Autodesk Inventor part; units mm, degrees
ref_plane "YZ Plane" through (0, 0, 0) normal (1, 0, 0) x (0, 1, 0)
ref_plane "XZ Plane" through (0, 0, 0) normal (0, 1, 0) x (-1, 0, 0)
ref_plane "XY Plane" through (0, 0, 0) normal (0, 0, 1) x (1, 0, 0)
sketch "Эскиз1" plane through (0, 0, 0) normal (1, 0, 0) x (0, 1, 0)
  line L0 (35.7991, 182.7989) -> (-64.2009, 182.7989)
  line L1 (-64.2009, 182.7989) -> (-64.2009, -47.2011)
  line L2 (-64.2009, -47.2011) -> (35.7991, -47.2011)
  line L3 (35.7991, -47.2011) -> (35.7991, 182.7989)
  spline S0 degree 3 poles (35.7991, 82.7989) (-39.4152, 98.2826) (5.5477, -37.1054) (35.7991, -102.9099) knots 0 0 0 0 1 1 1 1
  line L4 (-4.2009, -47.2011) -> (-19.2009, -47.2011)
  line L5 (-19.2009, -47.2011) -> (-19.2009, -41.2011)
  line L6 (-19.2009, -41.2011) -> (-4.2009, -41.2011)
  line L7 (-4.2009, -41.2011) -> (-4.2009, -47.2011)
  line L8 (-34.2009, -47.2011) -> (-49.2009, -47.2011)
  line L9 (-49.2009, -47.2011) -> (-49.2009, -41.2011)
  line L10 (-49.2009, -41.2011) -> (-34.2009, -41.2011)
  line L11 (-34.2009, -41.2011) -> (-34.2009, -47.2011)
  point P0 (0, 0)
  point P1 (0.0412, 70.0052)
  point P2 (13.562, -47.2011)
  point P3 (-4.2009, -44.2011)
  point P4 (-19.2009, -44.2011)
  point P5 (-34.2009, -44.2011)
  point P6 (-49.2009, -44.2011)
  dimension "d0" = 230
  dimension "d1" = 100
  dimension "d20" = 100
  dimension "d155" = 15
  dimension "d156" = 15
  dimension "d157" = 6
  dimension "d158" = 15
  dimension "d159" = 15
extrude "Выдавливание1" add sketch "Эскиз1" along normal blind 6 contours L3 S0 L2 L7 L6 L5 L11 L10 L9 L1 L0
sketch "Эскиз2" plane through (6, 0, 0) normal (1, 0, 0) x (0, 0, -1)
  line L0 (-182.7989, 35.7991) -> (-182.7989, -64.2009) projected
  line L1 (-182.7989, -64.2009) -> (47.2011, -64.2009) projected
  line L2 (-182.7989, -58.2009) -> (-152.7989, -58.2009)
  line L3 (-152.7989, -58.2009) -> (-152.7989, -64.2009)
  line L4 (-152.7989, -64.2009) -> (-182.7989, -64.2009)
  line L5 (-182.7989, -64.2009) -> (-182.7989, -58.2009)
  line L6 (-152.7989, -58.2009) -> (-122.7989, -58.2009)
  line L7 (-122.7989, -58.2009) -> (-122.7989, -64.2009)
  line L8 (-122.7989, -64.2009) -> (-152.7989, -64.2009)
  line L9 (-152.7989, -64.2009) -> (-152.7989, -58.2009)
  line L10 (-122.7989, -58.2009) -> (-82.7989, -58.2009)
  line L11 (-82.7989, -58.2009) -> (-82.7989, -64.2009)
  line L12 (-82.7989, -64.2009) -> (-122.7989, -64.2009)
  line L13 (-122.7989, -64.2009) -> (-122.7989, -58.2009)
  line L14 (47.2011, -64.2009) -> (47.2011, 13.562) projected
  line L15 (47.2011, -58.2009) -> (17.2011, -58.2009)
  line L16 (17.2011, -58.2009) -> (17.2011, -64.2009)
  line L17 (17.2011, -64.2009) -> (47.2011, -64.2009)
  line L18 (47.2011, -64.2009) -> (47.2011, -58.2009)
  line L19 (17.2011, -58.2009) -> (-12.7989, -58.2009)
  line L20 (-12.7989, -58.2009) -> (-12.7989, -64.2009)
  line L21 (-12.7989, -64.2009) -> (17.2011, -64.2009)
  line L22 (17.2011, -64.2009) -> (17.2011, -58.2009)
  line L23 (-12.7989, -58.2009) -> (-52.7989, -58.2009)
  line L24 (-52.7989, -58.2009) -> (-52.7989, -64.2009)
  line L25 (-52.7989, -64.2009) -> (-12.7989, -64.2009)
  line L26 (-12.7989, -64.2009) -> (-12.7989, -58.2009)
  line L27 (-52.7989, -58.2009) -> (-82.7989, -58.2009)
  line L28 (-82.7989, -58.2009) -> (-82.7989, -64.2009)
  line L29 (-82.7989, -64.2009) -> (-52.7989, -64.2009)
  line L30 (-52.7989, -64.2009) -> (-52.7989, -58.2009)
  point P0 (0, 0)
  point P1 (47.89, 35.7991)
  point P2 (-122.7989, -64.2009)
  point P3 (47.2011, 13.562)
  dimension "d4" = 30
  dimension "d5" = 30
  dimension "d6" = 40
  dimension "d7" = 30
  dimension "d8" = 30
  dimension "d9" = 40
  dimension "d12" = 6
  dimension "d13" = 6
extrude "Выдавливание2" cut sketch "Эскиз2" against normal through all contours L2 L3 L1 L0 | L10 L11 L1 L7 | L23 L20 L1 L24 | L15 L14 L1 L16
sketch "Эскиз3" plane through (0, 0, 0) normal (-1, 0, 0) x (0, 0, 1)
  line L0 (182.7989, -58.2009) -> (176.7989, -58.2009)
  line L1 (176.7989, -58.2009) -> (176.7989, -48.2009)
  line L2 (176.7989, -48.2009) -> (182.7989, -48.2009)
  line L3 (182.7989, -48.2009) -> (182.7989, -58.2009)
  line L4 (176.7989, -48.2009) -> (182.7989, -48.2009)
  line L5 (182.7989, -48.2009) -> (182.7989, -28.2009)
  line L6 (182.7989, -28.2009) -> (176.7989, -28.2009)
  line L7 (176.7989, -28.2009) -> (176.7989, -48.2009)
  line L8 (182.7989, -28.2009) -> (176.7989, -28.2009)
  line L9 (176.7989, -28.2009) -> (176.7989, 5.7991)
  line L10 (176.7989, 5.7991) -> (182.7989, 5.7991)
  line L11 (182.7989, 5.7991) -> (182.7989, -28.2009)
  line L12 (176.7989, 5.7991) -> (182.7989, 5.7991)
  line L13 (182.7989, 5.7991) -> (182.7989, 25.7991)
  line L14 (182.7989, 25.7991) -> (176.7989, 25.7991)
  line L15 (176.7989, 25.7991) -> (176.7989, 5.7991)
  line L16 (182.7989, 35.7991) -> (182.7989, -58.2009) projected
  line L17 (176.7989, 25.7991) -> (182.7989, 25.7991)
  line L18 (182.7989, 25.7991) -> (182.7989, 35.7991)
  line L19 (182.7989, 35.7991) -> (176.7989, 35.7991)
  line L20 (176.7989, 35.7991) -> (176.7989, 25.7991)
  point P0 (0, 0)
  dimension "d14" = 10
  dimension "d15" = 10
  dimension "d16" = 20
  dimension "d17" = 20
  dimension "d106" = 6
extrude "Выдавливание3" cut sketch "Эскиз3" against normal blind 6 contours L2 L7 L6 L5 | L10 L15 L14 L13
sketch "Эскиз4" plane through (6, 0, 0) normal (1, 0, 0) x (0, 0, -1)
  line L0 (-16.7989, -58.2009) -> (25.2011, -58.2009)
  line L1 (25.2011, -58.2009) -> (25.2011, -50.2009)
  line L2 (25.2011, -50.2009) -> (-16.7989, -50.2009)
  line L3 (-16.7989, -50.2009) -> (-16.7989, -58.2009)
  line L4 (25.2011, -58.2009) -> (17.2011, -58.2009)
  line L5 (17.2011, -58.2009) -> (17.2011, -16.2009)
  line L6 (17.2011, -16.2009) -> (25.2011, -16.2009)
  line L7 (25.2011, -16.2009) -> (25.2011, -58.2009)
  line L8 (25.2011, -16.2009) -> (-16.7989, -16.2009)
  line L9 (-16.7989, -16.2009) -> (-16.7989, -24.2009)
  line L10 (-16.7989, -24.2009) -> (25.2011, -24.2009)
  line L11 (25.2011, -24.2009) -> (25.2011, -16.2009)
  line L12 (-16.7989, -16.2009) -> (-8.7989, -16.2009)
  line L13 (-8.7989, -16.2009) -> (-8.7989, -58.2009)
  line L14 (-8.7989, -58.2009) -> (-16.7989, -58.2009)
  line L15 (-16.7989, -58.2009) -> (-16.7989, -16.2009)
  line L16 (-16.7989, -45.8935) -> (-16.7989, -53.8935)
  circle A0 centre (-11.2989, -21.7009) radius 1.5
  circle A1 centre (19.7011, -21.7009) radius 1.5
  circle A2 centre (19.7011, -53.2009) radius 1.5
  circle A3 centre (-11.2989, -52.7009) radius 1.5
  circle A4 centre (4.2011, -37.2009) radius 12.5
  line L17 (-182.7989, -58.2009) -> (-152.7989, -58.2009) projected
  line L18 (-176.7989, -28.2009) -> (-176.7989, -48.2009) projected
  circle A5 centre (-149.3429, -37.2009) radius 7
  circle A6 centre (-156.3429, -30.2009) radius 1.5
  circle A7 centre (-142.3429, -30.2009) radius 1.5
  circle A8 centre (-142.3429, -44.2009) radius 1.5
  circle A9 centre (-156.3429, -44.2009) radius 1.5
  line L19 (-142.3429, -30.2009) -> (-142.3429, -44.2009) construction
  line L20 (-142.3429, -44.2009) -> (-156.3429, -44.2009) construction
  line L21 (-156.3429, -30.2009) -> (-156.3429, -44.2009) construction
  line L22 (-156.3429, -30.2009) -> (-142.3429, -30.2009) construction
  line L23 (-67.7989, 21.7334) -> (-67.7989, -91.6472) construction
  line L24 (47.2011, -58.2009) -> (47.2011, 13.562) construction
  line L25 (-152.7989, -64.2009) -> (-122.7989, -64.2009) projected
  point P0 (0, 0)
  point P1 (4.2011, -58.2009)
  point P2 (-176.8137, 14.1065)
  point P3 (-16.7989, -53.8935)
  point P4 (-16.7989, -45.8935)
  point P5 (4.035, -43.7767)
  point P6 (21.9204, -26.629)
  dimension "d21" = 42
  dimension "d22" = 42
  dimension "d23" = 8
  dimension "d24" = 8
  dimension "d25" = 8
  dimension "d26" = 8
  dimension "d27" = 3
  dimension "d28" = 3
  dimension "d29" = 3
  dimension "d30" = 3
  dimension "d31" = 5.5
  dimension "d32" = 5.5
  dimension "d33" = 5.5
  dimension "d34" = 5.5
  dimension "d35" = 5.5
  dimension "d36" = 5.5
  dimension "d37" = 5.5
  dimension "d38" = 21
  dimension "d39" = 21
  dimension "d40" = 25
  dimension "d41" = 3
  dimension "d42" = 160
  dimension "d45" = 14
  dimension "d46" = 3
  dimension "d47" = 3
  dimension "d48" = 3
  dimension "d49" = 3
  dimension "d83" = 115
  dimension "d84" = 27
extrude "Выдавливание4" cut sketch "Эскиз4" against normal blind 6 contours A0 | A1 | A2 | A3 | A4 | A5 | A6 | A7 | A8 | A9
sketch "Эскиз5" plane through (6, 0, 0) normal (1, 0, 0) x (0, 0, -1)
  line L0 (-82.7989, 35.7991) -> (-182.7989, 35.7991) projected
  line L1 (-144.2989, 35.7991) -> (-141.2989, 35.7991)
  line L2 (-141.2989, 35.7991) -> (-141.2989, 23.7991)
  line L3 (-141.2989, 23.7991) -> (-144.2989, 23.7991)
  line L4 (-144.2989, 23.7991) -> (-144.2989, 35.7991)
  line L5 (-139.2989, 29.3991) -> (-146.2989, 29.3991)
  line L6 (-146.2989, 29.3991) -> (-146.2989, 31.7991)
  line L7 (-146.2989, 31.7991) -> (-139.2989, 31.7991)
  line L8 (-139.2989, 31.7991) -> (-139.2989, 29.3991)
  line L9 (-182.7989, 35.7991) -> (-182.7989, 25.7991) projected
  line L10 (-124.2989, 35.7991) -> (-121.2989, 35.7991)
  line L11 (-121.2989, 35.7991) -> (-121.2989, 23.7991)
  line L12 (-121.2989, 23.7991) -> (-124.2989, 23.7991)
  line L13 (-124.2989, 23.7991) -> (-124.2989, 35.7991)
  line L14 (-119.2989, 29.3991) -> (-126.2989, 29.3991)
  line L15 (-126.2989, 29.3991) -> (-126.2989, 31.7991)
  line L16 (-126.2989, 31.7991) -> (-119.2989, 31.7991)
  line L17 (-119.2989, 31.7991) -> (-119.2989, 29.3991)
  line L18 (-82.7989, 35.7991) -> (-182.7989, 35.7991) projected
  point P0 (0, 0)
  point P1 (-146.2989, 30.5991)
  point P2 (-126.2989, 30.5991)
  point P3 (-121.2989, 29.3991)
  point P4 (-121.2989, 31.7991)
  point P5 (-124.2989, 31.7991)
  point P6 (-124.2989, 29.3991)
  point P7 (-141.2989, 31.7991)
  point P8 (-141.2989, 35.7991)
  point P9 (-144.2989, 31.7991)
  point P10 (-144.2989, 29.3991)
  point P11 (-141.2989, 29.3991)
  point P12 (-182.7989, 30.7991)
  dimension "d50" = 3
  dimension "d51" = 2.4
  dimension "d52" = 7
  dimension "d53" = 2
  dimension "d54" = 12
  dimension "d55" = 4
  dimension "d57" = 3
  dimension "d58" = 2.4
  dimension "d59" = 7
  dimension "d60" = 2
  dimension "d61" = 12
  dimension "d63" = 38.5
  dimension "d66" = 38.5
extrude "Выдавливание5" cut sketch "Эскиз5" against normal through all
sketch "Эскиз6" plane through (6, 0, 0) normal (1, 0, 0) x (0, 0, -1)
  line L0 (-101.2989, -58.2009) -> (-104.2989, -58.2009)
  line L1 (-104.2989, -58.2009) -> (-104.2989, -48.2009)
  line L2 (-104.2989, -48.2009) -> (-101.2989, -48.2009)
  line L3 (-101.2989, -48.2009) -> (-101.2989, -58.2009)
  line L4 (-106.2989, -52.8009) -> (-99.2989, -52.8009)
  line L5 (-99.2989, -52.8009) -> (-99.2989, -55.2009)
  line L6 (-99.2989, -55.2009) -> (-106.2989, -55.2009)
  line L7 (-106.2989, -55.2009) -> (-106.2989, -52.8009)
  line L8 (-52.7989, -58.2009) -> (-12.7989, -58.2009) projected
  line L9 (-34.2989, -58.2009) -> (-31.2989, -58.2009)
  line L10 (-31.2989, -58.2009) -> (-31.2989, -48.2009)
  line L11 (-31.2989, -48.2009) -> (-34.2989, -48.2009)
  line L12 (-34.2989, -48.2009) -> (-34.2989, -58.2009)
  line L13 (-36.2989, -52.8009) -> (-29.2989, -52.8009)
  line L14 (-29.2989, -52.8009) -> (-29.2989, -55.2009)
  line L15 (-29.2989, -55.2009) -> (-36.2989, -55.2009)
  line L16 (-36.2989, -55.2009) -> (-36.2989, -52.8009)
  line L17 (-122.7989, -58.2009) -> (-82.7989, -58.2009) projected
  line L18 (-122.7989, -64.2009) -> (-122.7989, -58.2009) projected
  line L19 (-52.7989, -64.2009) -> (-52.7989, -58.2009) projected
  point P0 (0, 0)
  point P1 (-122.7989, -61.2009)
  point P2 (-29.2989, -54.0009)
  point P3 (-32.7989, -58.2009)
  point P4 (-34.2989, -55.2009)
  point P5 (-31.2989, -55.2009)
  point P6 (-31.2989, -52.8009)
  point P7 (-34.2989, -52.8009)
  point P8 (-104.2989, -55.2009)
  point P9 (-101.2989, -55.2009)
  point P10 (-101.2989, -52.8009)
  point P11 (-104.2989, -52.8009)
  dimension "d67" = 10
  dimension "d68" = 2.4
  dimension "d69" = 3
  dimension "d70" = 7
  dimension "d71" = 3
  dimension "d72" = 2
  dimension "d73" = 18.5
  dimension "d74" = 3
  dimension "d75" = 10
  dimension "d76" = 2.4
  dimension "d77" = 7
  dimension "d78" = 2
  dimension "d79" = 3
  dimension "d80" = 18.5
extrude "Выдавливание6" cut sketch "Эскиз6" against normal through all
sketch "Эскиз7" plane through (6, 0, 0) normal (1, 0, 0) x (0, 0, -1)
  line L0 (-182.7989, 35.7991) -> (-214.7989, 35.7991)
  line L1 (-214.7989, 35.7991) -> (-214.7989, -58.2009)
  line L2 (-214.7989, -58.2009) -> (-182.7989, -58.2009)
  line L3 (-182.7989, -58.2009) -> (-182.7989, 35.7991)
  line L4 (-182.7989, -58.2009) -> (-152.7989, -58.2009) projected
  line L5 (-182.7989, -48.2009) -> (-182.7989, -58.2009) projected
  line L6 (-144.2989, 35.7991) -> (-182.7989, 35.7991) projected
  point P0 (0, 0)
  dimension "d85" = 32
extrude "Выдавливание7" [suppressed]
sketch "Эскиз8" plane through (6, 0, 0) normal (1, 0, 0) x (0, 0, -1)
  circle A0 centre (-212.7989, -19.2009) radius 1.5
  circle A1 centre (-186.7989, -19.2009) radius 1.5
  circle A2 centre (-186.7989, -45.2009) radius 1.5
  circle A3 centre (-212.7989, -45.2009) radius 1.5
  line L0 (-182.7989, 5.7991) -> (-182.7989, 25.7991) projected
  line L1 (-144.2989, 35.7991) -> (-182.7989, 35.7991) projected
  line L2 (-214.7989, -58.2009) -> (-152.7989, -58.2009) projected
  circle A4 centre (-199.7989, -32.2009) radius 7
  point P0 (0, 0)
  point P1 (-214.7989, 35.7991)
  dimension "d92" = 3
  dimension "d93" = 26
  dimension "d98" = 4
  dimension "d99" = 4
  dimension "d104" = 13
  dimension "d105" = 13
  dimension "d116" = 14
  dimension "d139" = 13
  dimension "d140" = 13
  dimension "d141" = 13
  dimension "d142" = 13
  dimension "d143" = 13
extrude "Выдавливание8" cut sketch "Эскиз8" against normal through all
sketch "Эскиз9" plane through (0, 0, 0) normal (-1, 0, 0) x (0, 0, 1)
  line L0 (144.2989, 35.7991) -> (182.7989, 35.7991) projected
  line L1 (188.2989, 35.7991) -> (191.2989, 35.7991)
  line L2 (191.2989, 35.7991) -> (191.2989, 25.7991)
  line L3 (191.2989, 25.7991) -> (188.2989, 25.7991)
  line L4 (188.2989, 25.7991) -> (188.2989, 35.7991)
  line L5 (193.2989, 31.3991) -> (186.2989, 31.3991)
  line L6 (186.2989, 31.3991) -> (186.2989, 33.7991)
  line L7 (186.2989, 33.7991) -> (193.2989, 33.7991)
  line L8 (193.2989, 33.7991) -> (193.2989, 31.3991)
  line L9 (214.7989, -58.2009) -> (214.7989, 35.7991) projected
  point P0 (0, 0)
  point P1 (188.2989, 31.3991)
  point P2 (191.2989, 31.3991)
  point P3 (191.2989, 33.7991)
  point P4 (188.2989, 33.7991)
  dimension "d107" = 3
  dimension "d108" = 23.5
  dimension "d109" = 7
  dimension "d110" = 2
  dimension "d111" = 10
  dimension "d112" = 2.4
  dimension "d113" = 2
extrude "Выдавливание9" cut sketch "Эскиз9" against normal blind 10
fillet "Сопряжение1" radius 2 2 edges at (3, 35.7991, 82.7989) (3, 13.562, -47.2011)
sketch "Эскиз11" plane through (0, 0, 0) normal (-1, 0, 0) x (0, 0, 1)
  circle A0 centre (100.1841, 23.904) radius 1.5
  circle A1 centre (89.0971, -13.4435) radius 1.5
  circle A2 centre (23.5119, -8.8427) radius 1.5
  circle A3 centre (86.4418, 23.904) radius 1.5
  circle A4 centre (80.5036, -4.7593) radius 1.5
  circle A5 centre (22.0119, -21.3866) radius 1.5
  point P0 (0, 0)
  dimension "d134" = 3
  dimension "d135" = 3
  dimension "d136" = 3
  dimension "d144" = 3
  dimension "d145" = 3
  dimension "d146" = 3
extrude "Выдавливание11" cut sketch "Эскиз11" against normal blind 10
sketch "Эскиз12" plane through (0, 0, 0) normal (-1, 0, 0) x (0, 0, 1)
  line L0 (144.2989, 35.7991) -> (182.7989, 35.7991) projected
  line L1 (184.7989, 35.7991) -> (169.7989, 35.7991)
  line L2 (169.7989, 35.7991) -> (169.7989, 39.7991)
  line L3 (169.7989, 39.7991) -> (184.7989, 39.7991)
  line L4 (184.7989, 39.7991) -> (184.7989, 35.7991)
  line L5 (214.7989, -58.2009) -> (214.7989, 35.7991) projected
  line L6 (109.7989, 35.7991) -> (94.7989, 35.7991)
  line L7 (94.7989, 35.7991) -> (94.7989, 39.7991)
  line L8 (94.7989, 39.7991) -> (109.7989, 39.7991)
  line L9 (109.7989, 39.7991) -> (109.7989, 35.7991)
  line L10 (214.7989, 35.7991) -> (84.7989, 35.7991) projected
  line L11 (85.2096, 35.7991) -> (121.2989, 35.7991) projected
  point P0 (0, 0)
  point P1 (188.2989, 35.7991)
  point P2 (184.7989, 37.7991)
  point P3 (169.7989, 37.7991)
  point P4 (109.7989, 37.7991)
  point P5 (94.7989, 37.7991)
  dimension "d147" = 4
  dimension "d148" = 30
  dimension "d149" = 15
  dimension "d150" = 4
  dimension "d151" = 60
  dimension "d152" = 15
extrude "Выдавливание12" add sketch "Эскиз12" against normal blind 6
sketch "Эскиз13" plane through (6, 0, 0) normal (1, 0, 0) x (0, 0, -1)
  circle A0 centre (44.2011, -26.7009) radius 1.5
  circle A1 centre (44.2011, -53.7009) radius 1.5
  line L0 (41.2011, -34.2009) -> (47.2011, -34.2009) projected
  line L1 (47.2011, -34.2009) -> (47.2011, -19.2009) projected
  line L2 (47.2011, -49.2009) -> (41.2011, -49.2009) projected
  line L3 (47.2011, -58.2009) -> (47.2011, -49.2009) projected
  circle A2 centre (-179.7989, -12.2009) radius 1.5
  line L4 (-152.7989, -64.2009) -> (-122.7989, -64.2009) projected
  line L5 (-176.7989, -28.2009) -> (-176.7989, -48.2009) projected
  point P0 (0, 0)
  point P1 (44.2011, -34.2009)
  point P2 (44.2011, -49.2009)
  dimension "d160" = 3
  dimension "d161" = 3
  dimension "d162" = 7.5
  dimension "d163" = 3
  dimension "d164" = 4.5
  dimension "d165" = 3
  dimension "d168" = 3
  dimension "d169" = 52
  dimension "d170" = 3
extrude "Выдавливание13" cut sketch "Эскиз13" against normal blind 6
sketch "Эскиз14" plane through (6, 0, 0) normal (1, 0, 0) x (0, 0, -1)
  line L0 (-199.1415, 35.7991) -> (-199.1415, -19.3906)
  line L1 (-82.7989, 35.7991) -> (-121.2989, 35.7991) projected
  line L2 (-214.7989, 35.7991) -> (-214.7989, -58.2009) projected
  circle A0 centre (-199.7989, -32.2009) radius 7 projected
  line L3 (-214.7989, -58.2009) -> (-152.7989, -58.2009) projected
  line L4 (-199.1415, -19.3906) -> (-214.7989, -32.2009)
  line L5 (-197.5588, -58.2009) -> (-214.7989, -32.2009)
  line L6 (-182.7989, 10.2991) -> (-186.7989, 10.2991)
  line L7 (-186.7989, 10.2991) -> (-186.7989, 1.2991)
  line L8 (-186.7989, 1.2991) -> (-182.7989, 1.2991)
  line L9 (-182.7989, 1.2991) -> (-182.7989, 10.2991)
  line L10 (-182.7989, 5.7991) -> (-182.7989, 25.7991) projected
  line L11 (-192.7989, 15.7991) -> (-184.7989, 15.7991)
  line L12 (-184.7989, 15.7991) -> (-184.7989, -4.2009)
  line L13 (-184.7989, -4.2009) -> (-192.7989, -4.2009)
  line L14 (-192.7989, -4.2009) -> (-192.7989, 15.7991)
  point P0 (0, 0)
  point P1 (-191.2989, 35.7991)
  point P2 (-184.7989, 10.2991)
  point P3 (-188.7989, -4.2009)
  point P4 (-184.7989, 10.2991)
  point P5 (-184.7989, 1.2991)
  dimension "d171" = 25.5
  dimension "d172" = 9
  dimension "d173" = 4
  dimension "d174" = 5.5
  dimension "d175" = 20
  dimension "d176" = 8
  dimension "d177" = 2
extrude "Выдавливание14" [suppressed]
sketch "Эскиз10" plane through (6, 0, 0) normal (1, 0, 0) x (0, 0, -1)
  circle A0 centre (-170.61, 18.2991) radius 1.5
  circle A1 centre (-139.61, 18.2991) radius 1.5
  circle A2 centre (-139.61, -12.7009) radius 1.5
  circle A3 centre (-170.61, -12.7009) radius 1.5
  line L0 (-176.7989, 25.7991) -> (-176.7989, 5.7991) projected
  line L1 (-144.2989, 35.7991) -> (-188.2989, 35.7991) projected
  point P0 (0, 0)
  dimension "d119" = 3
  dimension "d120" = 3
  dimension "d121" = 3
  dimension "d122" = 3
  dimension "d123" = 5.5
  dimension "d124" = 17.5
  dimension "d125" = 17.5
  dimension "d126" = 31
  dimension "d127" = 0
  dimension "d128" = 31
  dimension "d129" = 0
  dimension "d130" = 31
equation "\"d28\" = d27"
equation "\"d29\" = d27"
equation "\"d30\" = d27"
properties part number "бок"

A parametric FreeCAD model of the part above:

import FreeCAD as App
import Part
import Sketcher
from FreeCAD import Vector


def edges_at(feature, points):
    """Names of the edges that pass closest to the given points."""
    edges = feature.Shape.Edges
    near = lambda p: min(range(len(edges)), key=lambda i: edges[i].distToShape(Part.Vertex(*p))[0])
    return sorted({f"Edge{near(p) + 1}" for p in points})


def add_polygon(sketch, points):
    """Adds a closed chain of lines whose ends are joined by coincident constraints."""
    first, n = sketch.GeometryCount, len(points)
    for a, b in zip(points, points[1:] + points[:1]):
        sketch.addGeometry(Part.LineSegment(App.Vector(*a, 0), App.Vector(*b, 0)), False)
    for i in range(n):
        sketch.addConstraint(Sketcher.Constraint("Coincident", first + i, 2, first + (i + 1) % n, 1))

doc = App.newDocument("Part")
body = doc.addObject("PartDesign::Body", "Body")

sketch1 = body.newObject("Sketcher::SketchObject", "Sketch")
sketch1.AttachmentSupport = (doc.getObject("YZ_Plane"), [""])
sketch1.MapMode = "FlatFace"
sketch1.addGeometry([
    Part.LineSegment(Vector(35.7991, 82.7989, 0), Vector(35.7991, 182.7989, 0)),
    Part.LineSegment(Vector(35.7991, 182.7989, 0), Vector(-64.2009, 182.7989, 0)),
    Part.LineSegment(Vector(-64.2009, 182.7989, 0), Vector(-64.2009, -47.2011, 0)),
    Part.LineSegment(Vector(-64.2009, -47.2011, 0), Vector(-49.2009, -47.2011, 0)),
    Part.LineSegment(Vector(-49.2009, -47.2011, 0), Vector(-49.2009, -41.2011, 0)),
    Part.LineSegment(Vector(-49.2009, -41.2011, 0), Vector(-34.2009, -41.2011, 0)),
    Part.LineSegment(Vector(-34.2009, -41.2011, 0), Vector(-34.2009, -47.2011, 0)),
    Part.LineSegment(Vector(-34.2009, -47.2011, 0), Vector(-19.2009, -47.2011, 0)),
    Part.LineSegment(Vector(-19.2009, -47.2011, 0), Vector(-19.2009, -41.2011, 0)),
    Part.LineSegment(Vector(-19.2009, -41.2011, 0), Vector(-4.2009, -41.2011, 0)),
    Part.LineSegment(Vector(-4.2009, -41.2011, 0), Vector(-4.2009, -47.2011, 0)),
    Part.LineSegment(Vector(-4.2009, -47.2011, 0), Vector(13.562007, -47.2011, 0)),
    Part.BSplineCurve([Vector(35.7991, 82.7989, 0), Vector(-21.551344, 94.605127, 0), Vector(-9.031133, 18.695011, 0), Vector(13.562007, -47.2011, 0)], [4, 4], [0, 0.762493885], False, 3, [1, 1, 1, 1], False),
], False)
sketch1.addConstraint([
    Sketcher.Constraint("Block", 12),
    Sketcher.Constraint("Coincident", 0, 2, 1, 1),
    Sketcher.Constraint("Coincident", 1, 2, 2, 1),
    Sketcher.Constraint("Coincident", 2, 2, 3, 1),
    Sketcher.Constraint("Coincident", 3, 2, 4, 1),
    Sketcher.Constraint("Coincident", 4, 2, 5, 1),
    Sketcher.Constraint("Coincident", 5, 2, 6, 1),
    Sketcher.Constraint("Coincident", 6, 2, 7, 1),
    Sketcher.Constraint("Coincident", 7, 2, 8, 1),
    Sketcher.Constraint("Coincident", 8, 2, 9, 1),
    Sketcher.Constraint("Coincident", 9, 2, 10, 1),
    Sketcher.Constraint("Coincident", 10, 2, 11, 1),
    Sketcher.Constraint("Coincident", 11, 2, 12, 2),
    Sketcher.Constraint("Coincident", 12, 1, 0, 1),
    Sketcher.Constraint("Vertical", 0),
    Sketcher.Constraint("Horizontal", 1),
    Sketcher.Constraint("Vertical", 2),
    Sketcher.Constraint("Horizontal", 3),
    Sketcher.Constraint("Vertical", 4),
    Sketcher.Constraint("Horizontal", 5),
    Sketcher.Constraint("Vertical", 6),
    Sketcher.Constraint("Horizontal", 7),
    Sketcher.Constraint("Vertical", 8),
    Sketcher.Constraint("Horizontal", 9),
    Sketcher.Constraint("Vertical", 10),
    Sketcher.Constraint("Horizontal", 11),
    Sketcher.Constraint("Horizontal", 3, 2, 6, 2),
    Sketcher.Constraint("Horizontal", 5, 2, 8, 2),
    Sketcher.Constraint("Horizontal", 7, 2, 10, 2),
    Sketcher.Constraint("Equal", 3, 5),
    Sketcher.Constraint("Equal", 5, 7),
    Sketcher.Constraint("Equal", 7, 9),
    Sketcher.Constraint("Equal", 1, 0),
    Sketcher.Constraint("DistanceX", 1, 2, 1, 1, 100.0),
    Sketcher.Constraint("DistanceX", 3, 1, 3, 2, 15.0),
    Sketcher.Constraint("DistanceY", 4, 1, 4, 2, 6.0),
])
pad1 = body.newObject("PartDesign::Pad", "Pad")
pad1.Profile = sketch1
pad1.Length = 6

sketch2 = body.newObject("Sketcher::SketchObject", "Sketch001")
sketch2.AttachmentSupport = (doc.getObject("YZ_Plane"), [""])
sketch2.MapMode = "FlatFace"
sketch2.AttachmentOffset = App.Placement(Vector(0, 0, 6), App.Rotation())
add_polygon(sketch2, [(-58, 153), (-58, 183), (-64, 183), (-64, 153)])
add_polygon(sketch2, [(-58, 83), (-58, 123), (-64, 123), (-64, 83)])
add_polygon(sketch2, [(-58, 13), (-58, 53), (-64, 53), (-64, 13)])
add_polygon(sketch2, [(-58, -47), (-58, -17), (-64, -17), (-64, -47)])
sketch2.addConstraint([
    Sketcher.Constraint("Vertical", 0),
    Sketcher.Constraint("Horizontal", 1),
    Sketcher.Constraint("Vertical", 2),
    Sketcher.Constraint("Horizontal", 3),
    Sketcher.Constraint("Vertical", 4),
    Sketcher.Constraint("Horizontal", 5),
    Sketcher.Constraint("Vertical", 6),
    Sketcher.Constraint("Horizontal", 7),
    Sketcher.Constraint("Vertical", 8),
    Sketcher.Constraint("Horizontal", 9),
    Sketcher.Constraint("Vertical", 10),
    Sketcher.Constraint("Horizontal", 11),
    Sketcher.Constraint("Vertical", 12),
    Sketcher.Constraint("Horizontal", 13),
    Sketcher.Constraint("Vertical", 14),
    Sketcher.Constraint("Horizontal", 15),
    Sketcher.Constraint("Vertical", 3, 2, 4, 2),
    Sketcher.Constraint("Vertical", 2, 2, 5, 2),
    Sketcher.Constraint("Vertical", 7, 2, 8, 2),
    Sketcher.Constraint("Vertical", 6, 2, 9, 2),
    Sketcher.Constraint("Vertical", 11, 2, 12, 2),
    Sketcher.Constraint("Vertical", 10, 2, 13, 2),
    Sketcher.Constraint("Equal", 6, 8),
    Sketcher.Constraint("Equal", 2, 12),
    Sketcher.Constraint("DistanceX", 1, 2, 1, 1, 6.0),
    Sketcher.Constraint("DistanceY", 0, 1, 0, 2, 30.0),
    Sketcher.Constraint("DistanceY", 4, 1, 4, 2, 40.0),
    Sketcher.Constraint("DistanceY", 4, 2, 3, 2, 30.0),
    Sketcher.Constraint("DistanceY", 8, 2, 7, 2, 30.0),
    Sketcher.Constraint("DistanceY", 12, 2, 11, 2, 30.0),
    Sketcher.Constraint("DistanceX", 0, 2, -1, 1, 58.201),
    Sketcher.Constraint("DistanceY", -1, 1, 0, 2, 182.799),
])
pocket1 = body.newObject("PartDesign::Pocket", "Pocket")
pocket1.Profile = sketch2
pocket1.Type = "ThroughAll"

sketch3 = body.newObject("Sketcher::SketchObject", "Sketch002")
sketch3.AttachmentSupport = (doc.getObject("YZ_Plane"), [""])
sketch3.MapMode = "FlatFace"
add_polygon(sketch3, [(-48, 177), (-48, 183), (-28, 183), (-28, 177)])
add_polygon(sketch3, [(6, 177), (6, 183), (26, 183), (26, 177)])
sketch3.addConstraint([
    Sketcher.Constraint("Vertical", 0),
    Sketcher.Constraint("Horizontal", 1),
    Sketcher.Constraint("Vertical", 2),
    Sketcher.Constraint("Horizontal", 3),
    Sketcher.Constraint("Vertical", 4),
    Sketcher.Constraint("Horizontal", 5),
    Sketcher.Constraint("Vertical", 6),
    Sketcher.Constraint("Horizontal", 7),
    Sketcher.Constraint("Horizontal", 1, 2, 4, 2),
    Sketcher.Constraint("Horizontal", 3, 2, 6, 2),
    Sketcher.Constraint("Equal", 3, 5),
    Sketcher.Constraint("DistanceX", 1, 1, 1, 2, 20.0),
    Sketcher.Constraint("DistanceY", 0, 1, 0, 2, 6.0),
    Sketcher.Constraint("DistanceX", 1, 2, 4, 2, 34.0),
    Sketcher.Constraint("DistanceX", 0, 2, -1, 1, 48.201),
    Sketcher.Constraint("DistanceY", -1, 1, 0, 2, 182.799),
])
pocket2 = body.newObject("PartDesign::Pocket", "Pocket001")
pocket2.Profile = sketch3
pocket2.Length = 6
pocket2.Reversed = True

sketch4 = body.newObject("Sketcher::SketchObject", "Sketch003")
sketch4.AttachmentSupport = (doc.getObject("YZ_Plane"), [""])
sketch4.MapMode = "FlatFace"
sketch4.AttachmentOffset = App.Placement(Vector(0, 0, 6), App.Rotation())
sketch4.addGeometry([
    Part.Circle(Vector(-21.7, 11.3, 0), Vector(0, 0, 1), 1.5),
    Part.Circle(Vector(-21.7, -19.7, 0), Vector(0, 0, 1), 1.5),
    Part.Circle(Vector(-53.2, -19.7, 0), Vector(0, 0, 1), 1.5),
    Part.Circle(Vector(-52.7, 11.3, 0), Vector(0, 0, 1), 1.5),
    Part.Circle(Vector(-37.2, -4.2, 0), Vector(0, 0, 1), 12.5),
    Part.Circle(Vector(-37.2, 149.3, 0), Vector(0, 0, 1), 7),
    Part.Circle(Vector(-30.2, 156.3, 0), Vector(0, 0, 1), 1.5),
    Part.Circle(Vector(-30.2, 142.3, 0), Vector(0, 0, 1), 1.5),
    Part.Circle(Vector(-44.2, 142.3, 0), Vector(0, 0, 1), 1.5),
    Part.Circle(Vector(-44.2, 156.3, 0), Vector(0, 0, 1), 1.5),
], False)
sketch4.addConstraint([
    Sketcher.Constraint("Equal", 0, 1),
    Sketcher.Constraint("Equal", 1, 2),
    Sketcher.Constraint("Equal", 2, 3),
    Sketcher.Constraint("Equal", 3, 6),
    Sketcher.Constraint("Equal", 6, 7),
    Sketcher.Constraint("Equal", 7, 8),
    Sketcher.Constraint("Equal", 8, 9),
    Sketcher.Constraint("Horizontal", 1, 3, 2, 3),
    Sketcher.Constraint("Horizontal", 0, 3, 3, 3),
    Sketcher.Constraint("Horizontal", 7, 3, 8, 3),
    Sketcher.Constraint("Horizontal", 6, 3, 9, 3),
    Sketcher.Constraint("Vertical", 0, 3, 1, 3),
    Sketcher.Constraint("Vertical", 4, 3, 5, 3),
    Sketcher.Constraint("Vertical", 6, 3, 7, 3),
    Sketcher.Constraint("Vertical", 8, 3, 9, 3),
    Sketcher.Constraint("Diameter", 0, 3.0),
    Sketcher.Constraint("Diameter", 4, 25.0),
    Sketcher.Constraint("Diameter", 5, 14.0),
    Sketcher.Constraint("DistanceY", 7, 3, 6, 3, 14.0),
    Sketcher.Constraint("DistanceX", 8, 3, 7, 3, 14.0),
    Sketcher.Constraint("DistanceY", 1, 3, 0, 3, 31.0),
    Sketcher.Constraint("DistanceX", 3, 3, 0, 3, 31.0),
    Sketcher.Constraint("DistanceX", 2, 3, 4, 3, 16.0),
    Sketcher.Constraint("DistanceX", 5, 3, 6, 3, 7.0),
    Sketcher.Constraint("DistanceY", 5, 3, 6, 3, 7.0),
    Sketcher.Constraint("DistanceX", 2, 3, 1, 3, 31.5),
    Sketcher.Constraint("DistanceY", 4, 3, 0, 3, 15.5),
    Sketcher.Constraint("DistanceX", 0, 3, -1, 1, 21.701),
    Sketcher.Constraint("DistanceY", -1, 1, 0, 3, 11.299),
    Sketcher.Constraint("DistanceY", -1, 1, 5, 3, 149.343),
])
pocket3 = body.newObject("PartDesign::Pocket", "Pocket002")
pocket3.Profile = sketch4
pocket3.Length = 6

sketch5 = body.newObject("Sketcher::SketchObject", "Sketch004")
sketch5.AttachmentSupport = (doc.getObject("YZ_Plane"), [""])
sketch5.MapMode = "FlatFace"
sketch5.AttachmentOffset = App.Placement(Vector(0, 0, 6), App.Rotation())
add_polygon(sketch5, [(31.8, 121.3), (35.8, 121.3), (35.8, 124.3), (31.8, 124.3), (31.8, 126.3), (29.4, 126.3), (29.4, 124.3), (23.8, 124.3), (23.8, 121.3), (29.4, 121.3), (29.4, 119.3), (31.8, 119.3)])
add_polygon(sketch5, [(31.8, 141.3), (35.8, 141.3), (35.8, 144.3), (31.8, 144.3), (31.8, 146.3), (29.4, 146.3), (29.4, 144.3), (23.8, 144.3), (23.8, 141.3), (29.4, 141.3), (29.4, 139.3), (31.8, 139.3)])
sketch5.addConstraint([
    Sketcher.Constraint("Horizontal", 0),
    Sketcher.Constraint("Vertical", 1),
    Sketcher.Constraint("Horizontal", 2),
    Sketcher.Constraint("Vertical", 3),
    Sketcher.Constraint("Horizontal", 4),
    Sketcher.Constraint("Vertical", 5),
    Sketcher.Constraint("Horizontal", 6),
    Sketcher.Constraint("Vertical", 7),
    Sketcher.Constraint("Horizontal", 8),
    Sketcher.Constraint("Vertical", 9),
    Sketcher.Constraint("Horizontal", 10),
    Sketcher.Constraint("Vertical", 11),
    Sketcher.Constraint("Horizontal", 12),
    Sketcher.Constraint("Vertical", 13),
    Sketcher.Constraint("Horizontal", 14),
    Sketcher.Constraint("Vertical", 15),
    Sketcher.Constraint("Horizontal", 16),
    Sketcher.Constraint("Vertical", 17),
    Sketcher.Constraint("Horizontal", 18),
    Sketcher.Constraint("Vertical", 19),
    Sketcher.Constraint("Horizontal", 20),
    Sketcher.Constraint("Vertical", 21),
    Sketcher.Constraint("Horizontal", 22),
    Sketcher.Constraint("Vertical", 23),
    Sketcher.Constraint("Horizontal", 2, 2, 5, 2),
    Sketcher.Constraint("Horizontal", 0, 2, 7, 2),
    Sketcher.Constraint("Horizontal", 14, 2, 17, 2),
    Sketcher.Constraint("Horizontal", 12, 2, 19, 2),
    Sketcher.Constraint("Vertical", 5, 2, 8, 2),
    Sketcher.Constraint("Vertical", 3, 2, 10, 2),
    Sketcher.Constraint("Vertical", 1, 2, 12, 2),
    Sketcher.Constraint("Vertical", 11, 2, 14, 2),
    Sketcher.Constraint("Vertical", 9, 2, 16, 2),
    Sketcher.Constraint("Vertical", 7, 2, 18, 2),
    Sketcher.Constraint("Vertical", 17, 2, 20, 2),
    Sketcher.Constraint("Vertical", 15, 2, 22, 2),
    Sketcher.Constraint("Equal", 5, 9),
    Sketcher.Constraint("Equal", 7, 13),
    Sketcher.Constraint("Equal", 11, 15),
    Sketcher.Constraint("Equal", 17, 21),
    Sketcher.Constraint("DistanceX", 0, 1, 0, 2, 4.0),
    Sketcher.Constraint("DistanceY", 1, 1, 1, 2, 3.0),
    Sketcher.Constraint("DistanceY", 3, 1, 3, 2, 2.0),
    Sketcher.Constraint("DistanceX", 4, 2, 4, 1, 2.4),
    Sketcher.Constraint("DistanceX", 6, 2, 1, 2, 12.0),
    Sketcher.Constraint("DistanceY", 3, 2, 12, 2, 15.0),
    Sketcher.Constraint("DistanceX", -1, 1, 0, 2, 35.799),
    Sketcher.Constraint("DistanceY", -1, 1, 0, 2, 121.299),
])
pocket4 = body.newObject("PartDesign::Pocket", "Pocket003")
pocket4.Profile = sketch5
pocket4.Type = "ThroughAll"

sketch6 = body.newObject("Sketcher::SketchObject", "Sketch005")
sketch6.AttachmentSupport = (doc.getObject("YZ_Plane"), [""])
sketch6.MapMode = "FlatFace"
sketch6.AttachmentOffset = App.Placement(Vector(0, 0, 6), App.Rotation())
add_polygon(sketch6, [(-58.2, 104.3), (-58.2, 101.3), (-55.2, 101.3), (-55.2, 99.3), (-52.8, 99.3), (-52.8, 101.3), (-48.2, 101.3), (-48.2, 104.3), (-52.8, 104.3), (-52.8, 106.3), (-55.2, 106.3), (-55.2, 104.3)])
add_polygon(sketch6, [(-55.2, 34.3), (-58.2, 34.3), (-58.2, 31.3), (-55.2, 31.3), (-55.2, 29.3), (-52.8, 29.3), (-52.8, 31.3), (-48.2, 31.3), (-48.2, 34.3), (-52.8, 34.3), (-52.8, 36.3), (-55.2, 36.3)])
sketch6.addConstraint([
    Sketcher.Constraint("Vertical", 0),
    Sketcher.Constraint("Horizontal", 1),
    Sketcher.Constraint("Vertical", 2),
    Sketcher.Constraint("Horizontal", 3),
    Sketcher.Constraint("Vertical", 4),
    Sketcher.Constraint("Horizontal", 5),
    Sketcher.Constraint("Vertical", 6),
    Sketcher.Constraint("Horizontal", 7),
    Sketcher.Constraint("Vertical", 8),
    Sketcher.Constraint("Horizontal", 9),
    Sketcher.Constraint("Vertical", 10),
    Sketcher.Constraint("Horizontal", 11),
    Sketcher.Constraint("Horizontal", 12),
    Sketcher.Constraint("Vertical", 13),
    Sketcher.Constraint("Horizontal", 14),
    Sketcher.Constraint("Vertical", 15),
    Sketcher.Constraint("Horizontal", 16),
    Sketcher.Constraint("Vertical", 17),
    Sketcher.Constraint("Horizontal", 18),
    Sketcher.Constraint("Vertical", 19),
    Sketcher.Constraint("Horizontal", 20),
    Sketcher.Constraint("Vertical", 21),
    Sketcher.Constraint("Horizontal", 22),
    Sketcher.Constraint("Vertical", 23),
    Sketcher.Constraint("Horizontal", 1, 2, 4, 2),
    Sketcher.Constraint("Horizontal", 7, 2, 10, 2),
    Sketcher.Constraint("Horizontal", 14, 2, 17, 2),
    Sketcher.Constraint("Horizontal", 12, 2, 19, 2),
    Sketcher.Constraint("Vertical", 4, 2, 7, 2),
    Sketcher.Constraint("Vertical", 2, 2, 9, 2),
    Sketcher.Constraint("Vertical", 11, 2, 12, 2),
    Sketcher.Constraint("Vertical", 10, 2, 14, 2),
    Sketcher.Constraint("Vertical", 8, 2, 16, 2),
    Sketcher.Constraint("Vertical", 6, 2, 18, 2),
    Sketcher.Constraint("Vertical", 17, 2, 20, 2),
    Sketcher.Constraint("Vertical", 15, 2, 22, 2),
    Sketcher.Constraint("Equal", 14, 0),
    Sketcher.Constraint("Equal", 4, 8),
    Sketcher.Constraint("Equal", 6, 13),
    Sketcher.Constraint("Equal", 10, 15),
    Sketcher.Constraint("Equal", 17, 21),
    Sketcher.Constraint("DistanceX", 1, 1, 1, 2, 3.0),
    Sketcher.Constraint("DistanceY", 2, 2, 2, 1, 2.0),
    Sketcher.Constraint("DistanceX", 3, 1, 3, 2, 2.4),
    Sketcher.Constraint("DistanceX", 1, 2, 5, 2, 7.0),
    Sketcher.Constraint("DistanceY", 12, 2, 2, 2, 65.0),
    Sketcher.Constraint("DistanceX", 0, 2, -1, 1, 58.201),
    Sketcher.Constraint("DistanceY", -1, 1, 0, 2, 101.299),
])
pocket5 = body.newObject("PartDesign::Pocket", "Pocket004")
pocket5.Profile = sketch6
pocket5.Type = "ThroughAll"

sketch7 = body.newObject("Sketcher::SketchObject", "Sketch006")
sketch7.AttachmentSupport = (doc.getObject("YZ_Plane"), [""])
sketch7.MapMode = "FlatFace"
sketch7.AttachmentOffset = App.Placement(Vector(0, 0, 6), App.Rotation())
sketch7.addGeometry([
    Part.Circle(Vector(-19.2, 212.8, 0), Vector(0, 0, 1), 1.5),
    Part.Circle(Vector(-19.2, 186.8, 0), Vector(0, 0, 1), 1.5),
    Part.Circle(Vector(-45.2, 186.8, 0), Vector(0, 0, 1), 1.5),
    Part.Circle(Vector(-45.2, 212.8, 0), Vector(0, 0, 1), 1.5),
    Part.Circle(Vector(-32.2, 199.8, 0), Vector(0, 0, 1), 7),
], False)
sketch7.addConstraint([
    Sketcher.Constraint("Equal", 0, 1),
    Sketcher.Constraint("Equal", 1, 2),
    Sketcher.Constraint("Equal", 2, 3),
    Sketcher.Constraint("Horizontal", 1, 3, 2, 3),
    Sketcher.Constraint("Horizontal", 0, 3, 3, 3),
    Sketcher.Constraint("Vertical", 0, 3, 1, 3),
    Sketcher.Constraint("Vertical", 2, 3, 3, 3),
    Sketcher.Constraint("Diameter", 0, 3.0),
    Sketcher.Constraint("Diameter", 4, 14.0),
    Sketcher.Constraint("DistanceY", 1, 3, 0, 3, 26.0),
    Sketcher.Constraint("DistanceX", 2, 3, 1, 3, 26.0),
    Sketcher.Constraint("DistanceX", 4, 3, 0, 3, 13.0),
    Sketcher.Constraint("DistanceY", 4, 3, 0, 3, 13.0),
    Sketcher.Constraint("DistanceX", 0, 3, -1, 1, 19.201),
    Sketcher.Constraint("DistanceY", -1, 1, 0, 3, 212.799),
])
pocket6 = body.newObject("PartDesign::Pocket", "Pocket005")
pocket6.Profile = sketch7
pocket6.Type = "ThroughAll"

sketch8 = body.newObject("Sketcher::SketchObject", "Sketch007")
sketch8.AttachmentSupport = (doc.getObject("YZ_Plane"), [""])
sketch8.MapMode = "FlatFace"
add_polygon(sketch8, [(35.8, 191.3), (35.8, 188.3), (33.8, 188.3), (33.8, 186.3), (31.4, 186.3), (31.4, 188.3), (25.8, 188.3), (25.8, 191.3), (31.4, 191.3), (31.4, 193.3), (33.8, 193.3), (33.8, 191.3)])
sketch8.addConstraint([
    Sketcher.Constraint("Vertical", 0),
    Sketcher.Constraint("Horizontal", 1),
    Sketcher.Constraint("Vertical", 2),
    Sketcher.Constraint("Horizontal", 3),
    Sketcher.Constraint("Vertical", 4),
    Sketcher.Constraint("Horizontal", 5),
    Sketcher.Constraint("Vertical", 6),
    Sketcher.Constraint("Horizontal", 7),
    Sketcher.Constraint("Vertical", 8),
    Sketcher.Constraint("Horizontal", 9),
    Sketcher.Constraint("Vertical", 10),
    Sketcher.Constraint("Horizontal", 11),
    Sketcher.Constraint("Horizontal", 1, 2, 4, 2),
    Sketcher.Constraint("Horizontal", 7, 2, 10, 2),
    Sketcher.Constraint("Vertical", 4, 2, 7, 2),
    Sketcher.Constraint("Vertical", 2, 2, 9, 2),
    Sketcher.Constraint("Equal", 11, 2),
    Sketcher.Constraint("Equal", 4, 8),
    Sketcher.Constraint("DistanceX", 1, 2, 1, 1, 2.0),
    Sketcher.Constraint("DistanceY", 0, 2, 0, 1, 3.0),
    Sketcher.Constraint("DistanceX", 3, 2, 3, 1, 2.4),
    Sketcher.Constraint("DistanceX", 5, 2, 0, 2, 10.0),
    Sketcher.Constraint("DistanceX", -1, 1, 0, 2, 35.799),
    Sketcher.Constraint("DistanceY", -1, 1, 0, 2, 188.299),
])
pocket7 = body.newObject("PartDesign::Pocket", "Pocket006")
pocket7.Profile = sketch8
pocket7.Length = 10
pocket7.Reversed = True
doc.recompute()

fillet = body.newObject("PartDesign::Fillet", "Fillet")
fillet.Base = (pocket7, edges_at(pocket7, [(3, 35.799, 82.799), (3, 13.562, -47.201)]))
fillet.Radius = 2

sketch9 = body.newObject("Sketcher::SketchObject", "Sketch008")
sketch9.AttachmentSupport = (doc.getObject("YZ_Plane"), [""])
sketch9.MapMode = "FlatFace"
sketch9.addGeometry([
    Part.Circle(Vector(23.9, 100.2, 0), Vector(0, 0, 1), 1.5),
    Part.Circle(Vector(-13.4, 89.1, 0), Vector(0, 0, 1), 1.5),
    Part.Circle(Vector(-8.8, 23.5, 0), Vector(0, 0, 1), 1.5),
    Part.Circle(Vector(23.9, 86.4, 0), Vector(0, 0, 1), 1.5),
    Part.Circle(Vector(-4.8, 80.5, 0), Vector(0, 0, 1), 1.5),
    Part.Circle(Vector(-21.4, 22, 0), Vector(0, 0, 1), 1.5),
], False)
sketch9.addConstraint([
    Sketcher.Constraint("Equal", 0, 1),
    Sketcher.Constraint("Equal", 1, 2),
    Sketcher.Constraint("Equal", 2, 3),
    Sketcher.Constraint("Equal", 3, 4),
    Sketcher.Constraint("Equal", 4, 5),
    Sketcher.Constraint("Vertical", 0, 3, 3, 3),
    Sketcher.Constraint("Diameter", 0, 3.0),
    Sketcher.Constraint("DistanceY", 5, 3, 2, 3, 1.5),
    Sketcher.Constraint("DistanceY", 2, 3, 3, 3, 62.93),
    Sketcher.Constraint("DistanceX", -1, 1, 0, 3, 23.904),
    Sketcher.Constraint("DistanceY", -1, 1, 0, 3, 100.184),
    Sketcher.Constraint("DistanceY", -1, 1, 1, 3, 89.097),
    Sketcher.Constraint("DistanceY", -1, 1, 2, 3, 23.512),
    Sketcher.Constraint("DistanceX", 5, 3, 2, 3, 12.544),
    Sketcher.Constraint("DistanceX", 5, 3, 1, 3, 7.943),
    Sketcher.Constraint("DistanceX", 1, 3, -1, 1, 13.4435),
    Sketcher.Constraint("DistanceX", 4, 3, -1, 1, 4.7593),
    Sketcher.Constraint("DistanceY", -1, 1, 4, 3, 80.5036),
])
pocket8 = body.newObject("PartDesign::Pocket", "Pocket007")
pocket8.Profile = sketch9
pocket8.Length = 10
pocket8.Reversed = True

sketch10 = body.newObject("Sketcher::SketchObject", "Sketch009")
sketch10.AttachmentSupport = (doc.getObject("YZ_Plane"), [""])
sketch10.MapMode = "FlatFace"
add_polygon(sketch10, [(39.8, 169.8), (35.8, 169.8), (35.8, 184.8), (39.8, 184.8)])
add_polygon(sketch10, [(35.8, 94.8), (35.8, 109.8), (39.8, 109.8), (39.8, 94.8)])
sketch10.addConstraint([
    Sketcher.Constraint("Horizontal", 0),
    Sketcher.Constraint("Vertical", 1),
    Sketcher.Constraint("Horizontal", 2),
    Sketcher.Constraint("Vertical", 3),
    Sketcher.Constraint("Vertical", 4),
    Sketcher.Constraint("Horizontal", 5),
    Sketcher.Constraint("Vertical", 6),
    Sketcher.Constraint("Horizontal", 7),
    Sketcher.Constraint("Vertical", 1, 2, 4, 2),
    Sketcher.Constraint("Vertical", 3, 2, 5, 2),
    Sketcher.Constraint("Equal", 3, 4),
    Sketcher.Constraint("DistanceX", 0, 2, 0, 1, 4.0),
    Sketcher.Constraint("DistanceY", 1, 1, 1, 2, 15.0),
    Sketcher.Constraint("DistanceY", 4, 2, 0, 2, 60.0),
    Sketcher.Constraint("DistanceX", -1, 1, 0, 2, 35.799),
    Sketcher.Constraint("DistanceY", -1, 1, 0, 2, 169.799),
])
pad2 = body.newObject("PartDesign::Pad", "Pad001")
pad2.Profile = sketch10
pad2.Length = 6

sketch11 = body.newObject("Sketcher::SketchObject", "Sketch010")
sketch11.AttachmentSupport = (doc.getObject("YZ_Plane"), [""])
sketch11.MapMode = "FlatFace"
sketch11.AttachmentOffset = App.Placement(Vector(0, 0, 6), App.Rotation())
sketch11.addGeometry([
    Part.Circle(Vector(-26.7, -44.2, 0), Vector(0, 0, 1), 1.5),
    Part.Circle(Vector(-53.7, -44.2, 0), Vector(0, 0, 1), 1.5),
    Part.Circle(Vector(-12.2, 179.8, 0), Vector(0, 0, 1), 1.5),
], False)
sketch11.addConstraint([
    Sketcher.Constraint("Equal", 0, 1),
    Sketcher.Constraint("Equal", 1, 2),
    Sketcher.Constraint("Horizontal", 0, 3, 1, 3),
    Sketcher.Constraint("Diameter", 0, 3.0),
    Sketcher.Constraint("DistanceX", 1, 3, 0, 3, 27.0),
    Sketcher.Constraint("DistanceY", 0, 3, 2, 3, 224.0),
    Sketcher.Constraint("DistanceX", 0, 3, 2, 3, 14.5),
    Sketcher.Constraint("DistanceX", 0, 3, -1, 1, 26.701),
    Sketcher.Constraint("DistanceY", 0, 3, -1, 1, 44.201),
])
pocket9 = body.newObject("PartDesign::Pocket", "Pocket008")
pocket9.Profile = sketch11
pocket9.Length = 6

doc.recompute()
